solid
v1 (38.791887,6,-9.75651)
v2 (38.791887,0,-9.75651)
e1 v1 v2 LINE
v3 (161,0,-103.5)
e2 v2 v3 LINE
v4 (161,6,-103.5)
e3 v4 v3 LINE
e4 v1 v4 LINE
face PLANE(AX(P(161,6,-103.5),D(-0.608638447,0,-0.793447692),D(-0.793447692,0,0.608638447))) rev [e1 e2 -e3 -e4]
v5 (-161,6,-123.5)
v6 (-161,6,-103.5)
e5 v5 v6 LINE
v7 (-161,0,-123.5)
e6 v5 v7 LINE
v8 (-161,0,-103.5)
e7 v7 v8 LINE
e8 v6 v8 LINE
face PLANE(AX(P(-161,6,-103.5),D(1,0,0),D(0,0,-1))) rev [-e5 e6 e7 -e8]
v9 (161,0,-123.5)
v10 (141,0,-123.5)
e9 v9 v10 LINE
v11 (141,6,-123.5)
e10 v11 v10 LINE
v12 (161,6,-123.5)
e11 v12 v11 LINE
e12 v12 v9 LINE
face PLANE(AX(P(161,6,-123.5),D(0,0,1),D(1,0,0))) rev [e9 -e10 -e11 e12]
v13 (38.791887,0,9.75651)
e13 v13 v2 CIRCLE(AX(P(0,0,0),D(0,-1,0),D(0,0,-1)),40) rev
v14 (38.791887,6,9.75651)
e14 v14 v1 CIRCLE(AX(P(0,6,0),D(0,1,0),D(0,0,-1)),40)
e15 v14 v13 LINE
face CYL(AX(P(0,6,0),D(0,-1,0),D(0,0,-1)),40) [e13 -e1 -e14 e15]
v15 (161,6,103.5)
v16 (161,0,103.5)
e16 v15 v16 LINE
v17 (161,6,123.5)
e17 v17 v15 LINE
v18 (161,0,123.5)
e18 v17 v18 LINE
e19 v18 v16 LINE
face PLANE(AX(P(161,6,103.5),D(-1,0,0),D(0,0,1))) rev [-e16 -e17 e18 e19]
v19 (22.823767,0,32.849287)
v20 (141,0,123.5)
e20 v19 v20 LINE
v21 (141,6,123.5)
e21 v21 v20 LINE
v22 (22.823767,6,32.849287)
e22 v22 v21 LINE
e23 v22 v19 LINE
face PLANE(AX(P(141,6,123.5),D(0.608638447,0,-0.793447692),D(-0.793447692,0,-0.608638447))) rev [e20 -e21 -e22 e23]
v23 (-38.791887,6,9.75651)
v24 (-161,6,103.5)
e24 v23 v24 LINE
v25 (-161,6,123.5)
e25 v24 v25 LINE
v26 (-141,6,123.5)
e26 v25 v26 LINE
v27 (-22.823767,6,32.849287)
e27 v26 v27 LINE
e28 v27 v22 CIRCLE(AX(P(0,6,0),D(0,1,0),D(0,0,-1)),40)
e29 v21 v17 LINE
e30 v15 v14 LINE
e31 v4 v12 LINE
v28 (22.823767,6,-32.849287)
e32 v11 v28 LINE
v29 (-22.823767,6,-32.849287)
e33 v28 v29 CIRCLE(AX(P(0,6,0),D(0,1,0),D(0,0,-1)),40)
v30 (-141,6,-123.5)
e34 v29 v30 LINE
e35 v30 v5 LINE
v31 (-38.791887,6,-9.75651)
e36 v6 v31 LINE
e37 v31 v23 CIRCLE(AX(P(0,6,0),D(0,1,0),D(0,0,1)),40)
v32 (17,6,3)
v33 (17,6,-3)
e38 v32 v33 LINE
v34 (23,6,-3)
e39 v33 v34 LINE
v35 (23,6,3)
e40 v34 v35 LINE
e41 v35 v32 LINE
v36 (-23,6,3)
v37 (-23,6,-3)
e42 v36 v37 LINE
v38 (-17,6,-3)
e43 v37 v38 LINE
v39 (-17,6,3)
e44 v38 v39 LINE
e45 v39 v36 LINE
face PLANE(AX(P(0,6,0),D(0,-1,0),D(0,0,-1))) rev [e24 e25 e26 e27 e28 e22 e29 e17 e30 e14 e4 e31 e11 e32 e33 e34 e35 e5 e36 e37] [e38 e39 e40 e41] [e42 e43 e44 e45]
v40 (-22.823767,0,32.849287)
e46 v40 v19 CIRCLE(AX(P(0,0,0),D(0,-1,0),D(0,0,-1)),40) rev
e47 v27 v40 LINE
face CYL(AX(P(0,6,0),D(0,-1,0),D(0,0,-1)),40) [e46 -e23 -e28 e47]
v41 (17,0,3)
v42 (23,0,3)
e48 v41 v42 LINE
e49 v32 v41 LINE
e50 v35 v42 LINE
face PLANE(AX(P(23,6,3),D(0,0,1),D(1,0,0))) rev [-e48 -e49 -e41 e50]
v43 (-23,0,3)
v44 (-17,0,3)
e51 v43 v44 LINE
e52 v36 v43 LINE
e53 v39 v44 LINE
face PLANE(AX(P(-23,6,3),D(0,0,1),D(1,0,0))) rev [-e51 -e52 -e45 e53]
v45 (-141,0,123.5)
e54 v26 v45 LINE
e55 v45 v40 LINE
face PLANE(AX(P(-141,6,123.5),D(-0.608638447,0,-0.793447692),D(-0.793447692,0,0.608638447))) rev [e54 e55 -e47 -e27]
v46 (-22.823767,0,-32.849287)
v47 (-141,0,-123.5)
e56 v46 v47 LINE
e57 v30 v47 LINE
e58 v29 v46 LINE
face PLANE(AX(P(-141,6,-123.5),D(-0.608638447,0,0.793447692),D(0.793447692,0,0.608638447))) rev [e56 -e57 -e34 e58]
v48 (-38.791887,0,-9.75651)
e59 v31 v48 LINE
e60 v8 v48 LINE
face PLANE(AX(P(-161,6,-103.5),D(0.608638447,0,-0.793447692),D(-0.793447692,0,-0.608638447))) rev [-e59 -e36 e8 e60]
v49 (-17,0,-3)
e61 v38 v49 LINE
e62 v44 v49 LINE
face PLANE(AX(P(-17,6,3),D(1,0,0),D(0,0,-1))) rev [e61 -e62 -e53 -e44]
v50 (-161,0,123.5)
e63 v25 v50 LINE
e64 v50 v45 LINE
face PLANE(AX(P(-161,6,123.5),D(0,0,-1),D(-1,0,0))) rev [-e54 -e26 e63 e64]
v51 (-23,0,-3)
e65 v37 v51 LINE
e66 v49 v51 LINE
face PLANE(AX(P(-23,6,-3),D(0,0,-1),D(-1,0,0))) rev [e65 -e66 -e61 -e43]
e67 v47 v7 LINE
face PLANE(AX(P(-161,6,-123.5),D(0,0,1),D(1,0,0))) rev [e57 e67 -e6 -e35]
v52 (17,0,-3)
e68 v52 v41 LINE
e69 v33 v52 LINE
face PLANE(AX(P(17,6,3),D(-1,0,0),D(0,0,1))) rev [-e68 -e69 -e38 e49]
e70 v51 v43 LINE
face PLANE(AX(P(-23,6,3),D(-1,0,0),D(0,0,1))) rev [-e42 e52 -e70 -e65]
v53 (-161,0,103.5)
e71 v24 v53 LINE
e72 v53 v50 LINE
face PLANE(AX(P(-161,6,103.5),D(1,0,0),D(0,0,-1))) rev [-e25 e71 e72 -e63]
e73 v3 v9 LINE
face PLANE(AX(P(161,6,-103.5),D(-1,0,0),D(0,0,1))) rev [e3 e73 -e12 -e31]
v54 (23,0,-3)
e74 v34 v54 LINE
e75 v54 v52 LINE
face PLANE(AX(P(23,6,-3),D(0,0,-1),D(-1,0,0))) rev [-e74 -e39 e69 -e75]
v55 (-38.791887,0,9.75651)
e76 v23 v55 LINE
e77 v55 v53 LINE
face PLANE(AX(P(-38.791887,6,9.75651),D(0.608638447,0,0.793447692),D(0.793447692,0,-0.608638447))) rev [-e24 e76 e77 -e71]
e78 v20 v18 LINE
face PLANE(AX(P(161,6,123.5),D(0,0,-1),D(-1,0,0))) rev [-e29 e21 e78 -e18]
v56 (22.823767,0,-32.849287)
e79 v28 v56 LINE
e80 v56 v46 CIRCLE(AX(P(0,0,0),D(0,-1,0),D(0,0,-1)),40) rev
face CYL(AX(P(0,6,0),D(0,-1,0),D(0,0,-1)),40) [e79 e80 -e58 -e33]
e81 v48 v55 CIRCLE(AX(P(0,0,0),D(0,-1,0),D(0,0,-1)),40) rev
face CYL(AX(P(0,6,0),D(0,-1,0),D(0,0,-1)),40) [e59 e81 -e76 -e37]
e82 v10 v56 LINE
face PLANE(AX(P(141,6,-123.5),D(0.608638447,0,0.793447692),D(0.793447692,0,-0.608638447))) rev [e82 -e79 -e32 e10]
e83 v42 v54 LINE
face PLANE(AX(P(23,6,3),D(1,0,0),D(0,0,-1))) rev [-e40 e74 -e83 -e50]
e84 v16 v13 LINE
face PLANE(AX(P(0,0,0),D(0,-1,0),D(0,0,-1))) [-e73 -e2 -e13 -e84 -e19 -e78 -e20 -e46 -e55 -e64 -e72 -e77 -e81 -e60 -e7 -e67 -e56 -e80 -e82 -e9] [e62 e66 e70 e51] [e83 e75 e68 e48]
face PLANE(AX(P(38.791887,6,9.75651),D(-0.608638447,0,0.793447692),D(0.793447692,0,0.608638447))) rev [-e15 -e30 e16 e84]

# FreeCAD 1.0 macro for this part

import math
import FreeCAD as App
import Part
import Sketcher
Q = App.Units.Quantity


def add_polygon(sketch, points):
    """Adds a closed chain of lines whose ends are joined by coincident constraints."""
    first, n = sketch.GeometryCount, len(points)
    for a, b in zip(points, points[1:] + points[:1]):
        sketch.addGeometry(Part.LineSegment(App.Vector(*a, 0), App.Vector(*b, 0)), False)
    for i in range(n):
        sketch.addConstraint(Sketcher.Constraint("Coincident", first + i, 2, first + (i + 1) % n, 1))

doc = App.newDocument("Part")
body = doc.addObject("PartDesign::Body", "Body")

sketch1 = body.newObject("Sketcher::SketchObject", "Sketch")
sketch1.AttachmentSupport = (doc.getObject("XZ_Plane"), [""])
sketch1.MapMode = "FlatFace"
sketch1.addGeometry([
    Part.LineSegment(App.Vector(-161, -104, 0), App.Vector(-39, -10, 0)),
    Part.ArcOfCircle(Part.Circle(App.Vector(0, 0, 0), App.Vector(0, 0, 1), 40), math.radians(166), math.radians(194)),
    Part.LineSegment(App.Vector(-39, 10, 0), App.Vector(-161, 104, 0)),
    Part.LineSegment(App.Vector(-161, 104, 0), App.Vector(-161, 124, 0)),
    Part.LineSegment(App.Vector(-161, 124, 0), App.Vector(-141, 124, 0)),
    Part.LineSegment(App.Vector(-141, 124, 0), App.Vector(-23, 33, 0)),
    Part.ArcOfCircle(Part.Circle(App.Vector(0, 0, 0), App.Vector(0, 0, 1), 40), math.radians(55), math.radians(125)),
    Part.LineSegment(App.Vector(23, 33, 0), App.Vector(141, 124, 0)),
    Part.LineSegment(App.Vector(141, 124, 0), App.Vector(161, 124, 0)),
    Part.LineSegment(App.Vector(161, 124, 0), App.Vector(161, 104, 0)),
    Part.LineSegment(App.Vector(161, 104, 0), App.Vector(39, 10, 0)),
    Part.ArcOfCircle(Part.Circle(App.Vector(0, 0, 0), App.Vector(0, 0, 1), 40), math.radians(-14), math.radians(14)),
    Part.LineSegment(App.Vector(39, -10, 0), App.Vector(161, -104, 0)),
    Part.LineSegment(App.Vector(161, -104, 0), App.Vector(161, -124, 0)),
    Part.LineSegment(App.Vector(161, -124, 0), App.Vector(141, -124, 0)),
    Part.LineSegment(App.Vector(141, -124, 0), App.Vector(23, -33, 0)),
    Part.ArcOfCircle(Part.Circle(App.Vector(0, 0, 0), App.Vector(0, 0, 1), 40), math.radians(-125), math.radians(-55)),
    Part.LineSegment(App.Vector(-23, -33, 0), App.Vector(-141, -124, 0)),
    Part.LineSegment(App.Vector(-141, -124, 0), App.Vector(-161, -124, 0)),
    Part.LineSegment(App.Vector(-161, -124, 0), App.Vector(-161, -104, 0)),
], False)
sketch1.addConstraint([
    Sketcher.Constraint("Coincident", 0, 2, 1, 2),
    Sketcher.Constraint("Coincident", 1, 1, 2, 1),
    Sketcher.Constraint("Coincident", 2, 2, 3, 1),
    Sketcher.Constraint("Coincident", 3, 2, 4, 1),
    Sketcher.Constraint("Coincident", 4, 2, 5, 1),
    Sketcher.Constraint("Coincident", 5, 2, 6, 2),
    Sketcher.Constraint("Coincident", 6, 1, 7, 1),
    Sketcher.Constraint("Coincident", 7, 2, 8, 1),
    Sketcher.Constraint("Coincident", 8, 2, 9, 1),
    Sketcher.Constraint("Coincident", 9, 2, 10, 1),
    Sketcher.Constraint("Coincident", 10, 2, 11, 2),
    Sketcher.Constraint("Coincident", 11, 1, 12, 1),
    Sketcher.Constraint("Coincident", 12, 2, 13, 1),
    Sketcher.Constraint("Coincident", 13, 2, 14, 1),
    Sketcher.Constraint("Coincident", 14, 2, 15, 1),
    Sketcher.Constraint("Coincident", 15, 2, 16, 2),
    Sketcher.Constraint("Coincident", 16, 1, 17, 1),
    Sketcher.Constraint("Coincident", 17, 2, 18, 1),
    Sketcher.Constraint("Coincident", 18, 2, 19, 1),
    Sketcher.Constraint("Coincident", 19, 2, 0, 1),
    Sketcher.Constraint("Vertical", 3),
    Sketcher.Constraint("Horizontal", 4),
    Sketcher.Constraint("Horizontal", 8),
    Sketcher.Constraint("Vertical", 9),
    Sketcher.Constraint("Vertical", 13),
    Sketcher.Constraint("Horizontal", 14),
    Sketcher.Constraint("Horizontal", 18),
    Sketcher.Constraint("Vertical", 19),
    Sketcher.Constraint("Coincident", 1, 3, -1, 1),
    Sketcher.Constraint("Coincident", 6, 3, -1, 1),
    Sketcher.Constraint("Coincident", 11, 3, -1, 1),
    Sketcher.Constraint("Coincident", 16, 3, -1, 1),
    Sketcher.Constraint("Equal", 1, 6),
    Sketcher.Constraint("Equal", 6, 11),
    Sketcher.Constraint("Equal", 11, 16),
    Sketcher.Constraint("Symmetric", 2, 2, 12, 2, -1, 1),
    Sketcher.Constraint("Symmetric", 4, 2, 14, 2, -1, 1),
    Sketcher.Constraint("Symmetric", 7, 2, 17, 2, -1, 1),
    Sketcher.Constraint("Symmetric", 9, 2, 19, 2, -1, 1),
    Sketcher.Constraint("Symmetric", 4, 2, 7, 2, -2),
    Sketcher.Constraint("Symmetric", 2, 2, 9, 2, -2),
    Sketcher.Constraint("Parallel", 2, 5),
    Sketcher.Constraint("Parallel", 0, 7),
    Sketcher.Constraint("Parallel", 7, 10),
    Sketcher.Constraint("Parallel", 5, 12),
    Sketcher.Constraint("Parallel", 12, 15),
    Sketcher.Constraint("Parallel", 10, 17),
    Sketcher.Constraint("Horizontal", 5, 2, 6, 1),
    Sketcher.Constraint("Equal", 18, 3),
    Sketcher.Constraint("Radius", 1, Q("40 mm")),
    Sketcher.Constraint("DistanceX", 4, 1, 4, 2, Q("20 mm")),
    Sketcher.Constraint("DistanceX", 2, 2, -1, 1, Q("161 mm")),
    Sketcher.Constraint("DistanceY", -1, 1, 2, 2, Q("103.5 mm")),
    Sketcher.Constraint("Distance", 5, Q("148.940169 mm")),
])
pad1 = body.newObject("PartDesign::Pad", "Pad")
pad1.Profile = sketch1
pad1.Length = 6
pad1.Reversed = True

sketch2 = body.newObject("Sketcher::SketchObject", "Sketch001")
sketch2.AttachmentSupport = (doc.getObject("XZ_Plane"), [""])
sketch2.MapMode = "FlatFace"
sketch2.addGeometry(Part.Circle(App.Vector(0, 0, 0), App.Vector(0, 0, 1), 40), False)
sketch2.addConstraint([
    Sketcher.Constraint("Coincident", 0, 3, -1, 1),
    Sketcher.Constraint("Diameter", 0, Q("80 mm")),
])
pad2 = body.newObject("PartDesign::Pad", "Pad001")
pad2.Profile = sketch2
pad2.Length = 6

sketch3 = body.newObject("Sketcher::SketchObject", "Sketch002")
sketch3.AttachmentSupport = (doc.getObject("XZ_Plane"), [""])
sketch3.MapMode = "FlatFace"
sketch3.AttachmentOffset = App.Placement(App.Vector(0, 0, 6), App.Rotation())
sketch3.addGeometry([
    Part.LineSegment(App.Vector(-19, -21, 0), App.Vector(19, -21, 0)),
    Part.ArcOfCircle(Part.Circle(App.Vector(0, 0, 0), App.Vector(0, 0, 1), 28), math.radians(-48), math.radians(48)),
    Part.LineSegment(App.Vector(19, 21, 0), App.Vector(13, 21, 0)),
    Part.LineSegment(App.Vector(13, 21, 0), App.Vector(13, -11, 0)),
    Part.LineSegment(App.Vector(13, -11, 0), App.Vector(-13, -11, 0)),
    Part.LineSegment(App.Vector(-13, -11, 0), App.Vector(-13, 21, 0)),
    Part.LineSegment(App.Vector(-13, 21, 0), App.Vector(-19, 21, 0)),
    Part.ArcOfCircle(Part.Circle(App.Vector(0, 0, 0), App.Vector(0, 0, 1), 28), math.radians(132), math.radians(228)),
], False)
sketch3.addConstraint([
    Sketcher.Constraint("Coincident", 0, 2, 1, 1),
    Sketcher.Constraint("Coincident", 1, 2, 2, 1),
    Sketcher.Constraint("Coincident", 2, 2, 3, 1),
    Sketcher.Constraint("Coincident", 3, 2, 4, 1),
    Sketcher.Constraint("Coincident", 4, 2, 5, 1),
    Sketcher.Constraint("Coincident", 5, 2, 6, 1),
    Sketcher.Constraint("Coincident", 6, 2, 7, 1),
    Sketcher.Constraint("Coincident", 7, 2, 0, 1),
    Sketcher.Constraint("Horizontal", 0),
    Sketcher.Constraint("Horizontal", 2),
    Sketcher.Constraint("Vertical", 3),
    Sketcher.Constraint("Horizontal", 4),
    Sketcher.Constraint("Vertical", 5),
    Sketcher.Constraint("Horizontal", 6),
    Sketcher.Constraint("Coincident", 1, 3, -1, 1),
    Sketcher.Constraint("Coincident", 7, 3, -1, 1),
    Sketcher.Constraint("Equal", 1, 7),
    Sketcher.Constraint("Symmetric", 2, 2, 5, 2, -2),
    Sketcher.Constraint("Vertical", 0, 2, 1, 2),
    Sketcher.Constraint("DistanceY", 3, 2, 3, 1, Q("32 mm")),
    Sketcher.Constraint("Radius", 1, Q("28.25 mm")),
    Sketcher.Constraint("DistanceX", 4, 2, 4, 1, Q("26.5 mm")),
    Sketcher.Constraint("DistanceY", 0, 2, -1, 1, Q("21 mm")),
])
pad3 = body.newObject("PartDesign::Pad", "Pad002")
pad3.Profile = sketch3
pad3.Length = 6

sketch4 = body.newObject("Sketcher::SketchObject", "Sketch003")
sketch4.AttachmentSupport = (doc.getObject("XZ_Plane"), [""])
sketch4.MapMode = "FlatFace"
sketch4.AttachmentOffset = App.Placement(App.Vector(0, 0, 12), App.Rotation())
sketch4.addGeometry([
    Part.LineSegment(App.Vector(-13.25, 21, 0), App.Vector(-18.9, 21, 0)),
    Part.ArcOfCircle(Part.Circle(App.Vector(0, 0, 0), App.Vector(0, 0, 1), 28.25), math.radians(132), math.radians(228)),
    Part.LineSegment(App.Vector(-18.9, -21, 0), App.Vector(18.9, -21, 0)),
    Part.ArcOfCircle(Part.Circle(App.Vector(0, 0, 0), App.Vector(0, 0, 1), 28.25), math.radians(-48), math.radians(48)),
    Part.LineSegment(App.Vector(18.9, 21, 0), App.Vector(13.25, 21, 0)),
    Part.LineSegment(App.Vector(13.25, 21, 0), App.Vector(13.25, 3.5, 0)),
    Part.ArcOfCircle(Part.Circle(App.Vector(12.75, 3.5, 0), App.Vector(0, 0, 1), 0.5), math.radians(-90), math.radians(0)),
    Part.LineSegment(App.Vector(12.75, 3, 0), App.Vector(-12.75, 3, 0)),
    Part.ArcOfCircle(Part.Circle(App.Vector(-12.75, 3.5, 0), App.Vector(0, 0, 1), 0.5), math.radians(180), math.radians(270)),
    Part.LineSegment(App.Vector(-13.25, 3.5, 0), App.Vector(-13.25, 21, 0)),
    Part.Circle(App.Vector(8, -5.75, 0), App.Vector(0, 0, 1), 1.75),
    Part.Circle(App.Vector(-8, -5.75, 0), App.Vector(0, 0, 1), 1.75),
], False)
sketch4.addConstraint([
    Sketcher.Constraint("Coincident", 0, 2, 1, 1),
    Sketcher.Constraint("Coincident", 1, 2, 2, 1),
    Sketcher.Constraint("Coincident", 2, 2, 3, 1),
    Sketcher.Constraint("Coincident", 3, 2, 4, 1),
    Sketcher.Constraint("Coincident", 4, 2, 5, 1),
    Sketcher.Constraint("Tangent", 5, 2, 6, 2),
    Sketcher.Constraint("Tangent", 6, 1, 7, 1),
    Sketcher.Constraint("Tangent", 7, 2, 8, 2),
    Sketcher.Constraint("Tangent", 8, 1, 9, 1),
    Sketcher.Constraint("Coincident", 9, 2, 0, 1),
    Sketcher.Constraint("Horizontal", 0),
    Sketcher.Constraint("Horizontal", 2),
    Sketcher.Constraint("Horizontal", 4),
    Sketcher.Constraint("Vertical", 5),
    Sketcher.Constraint("Horizontal", 7),
    Sketcher.Constraint("Vertical", 9),
    Sketcher.Constraint("Coincident", 1, 3, -1, 1),
    Sketcher.Constraint("Coincident", 3, 3, -1, 1),
    Sketcher.Constraint("Equal", 1, 3),
    Sketcher.Constraint("Equal", 6, 8),
    Sketcher.Constraint("Equal", 10, 11),
    Sketcher.Constraint("Symmetric", 10, 3, 11, 3, -2),
    Sketcher.Constraint("Symmetric", 4, 2, 9, 2, -2),
    Sketcher.Constraint("Vertical", 0, 2, 1, 2),
    Sketcher.Constraint("Diameter", 10, Q("3.5 mm")),
    Sketcher.Constraint("Radius", 6, Q("0.5 mm")),
    Sketcher.Constraint("Radius", 1, Q("28.25 mm")),
    Sketcher.Constraint("DistanceX", 7, 2, 7, 1, Q("25.5 mm")),
    Sketcher.Constraint("DistanceY", 5, 2, 5, 1, Q("17.5 mm")),
    Sketcher.Constraint("DistanceX", -1, 1, 10, 3, Q("8 mm")),
    Sketcher.Constraint("DistanceY", -1, 1, 0, 2, Q("21 mm")),
    Sketcher.Constraint("DistanceY", 10, 3, -1, 1, Q("5.75 mm")),
])
pad4 = body.newObject("PartDesign::Pad", "Pad003")
pad4.Profile = sketch4
pad4.Length = 6

sketch5 = body.newObject("Sketcher::SketchObject", "Sketch004")
sketch5.AttachmentSupport = (doc.getObject("XZ_Plane"), [""])
sketch5.MapMode = "FlatFace"
sketch5.AttachmentOffset = App.Placement(App.Vector(0, 0, 18), App.Rotation())
add_polygon(sketch5, [(-23, 3), (-23, -3), (-17, -3), (-17, 3)])
add_polygon(sketch5, [(17, 3), (17, -3), (23, -3), (23, 3)])
sketch5.addConstraint([
    Sketcher.Constraint("Vertical", 0),
    Sketcher.Constraint("Horizontal", 1),
    Sketcher.Constraint("Vertical", 2),
    Sketcher.Constraint("Horizontal", 3),
    Sketcher.Constraint("Vertical", 4),
    Sketcher.Constraint("Horizontal", 5),
    Sketcher.Constraint("Vertical", 6),
    Sketcher.Constraint("Horizontal", 7),
    Sketcher.Constraint("Symmetric", 2, 2, 4, 2, -1, 1),
    Sketcher.Constraint("Symmetric", 0, 2, 6, 2, -1, 1),
    Sketcher.Constraint("Horizontal", 1, 2, 4, 2),
    Sketcher.Constraint("Equal", 7, 0),
    Sketcher.Constraint("DistanceX", 1, 1, 1, 2, Q("6 mm")),
    Sketcher.Constraint("DistanceX", 0, 2, -1, 1, Q("23 mm")),
])
pocket1 = body.newObject("PartDesign::Pocket", "Pocket")
pocket1.Profile = sketch5
pocket1.Type = "ThroughAll"

sketch6 = body.newObject("Sketcher::SketchObject", "Sketch005")
sketch6.AttachmentSupport = (doc.getObject("XZ_Plane"), [""])
sketch6.MapMode = "FlatFace"
sketch6.AttachmentOffset = App.Placement(App.Vector(0, 0, 18), App.Rotation())
sketch6.addGeometry(Part.Circle(App.Vector(0, 0, 0), App.Vector(0, 0, 1), 40), False)
sketch6.addConstraint([
    Sketcher.Constraint("Coincident", 0, 3, -1, 1),
    Sketcher.Constraint("Diameter", 0, Q("80 mm")),
])
pocket2 = body.newObject("PartDesign::Pocket", "Pocket001")
pocket2.Profile = sketch6
pocket2.Length = 18

doc.recompute()
